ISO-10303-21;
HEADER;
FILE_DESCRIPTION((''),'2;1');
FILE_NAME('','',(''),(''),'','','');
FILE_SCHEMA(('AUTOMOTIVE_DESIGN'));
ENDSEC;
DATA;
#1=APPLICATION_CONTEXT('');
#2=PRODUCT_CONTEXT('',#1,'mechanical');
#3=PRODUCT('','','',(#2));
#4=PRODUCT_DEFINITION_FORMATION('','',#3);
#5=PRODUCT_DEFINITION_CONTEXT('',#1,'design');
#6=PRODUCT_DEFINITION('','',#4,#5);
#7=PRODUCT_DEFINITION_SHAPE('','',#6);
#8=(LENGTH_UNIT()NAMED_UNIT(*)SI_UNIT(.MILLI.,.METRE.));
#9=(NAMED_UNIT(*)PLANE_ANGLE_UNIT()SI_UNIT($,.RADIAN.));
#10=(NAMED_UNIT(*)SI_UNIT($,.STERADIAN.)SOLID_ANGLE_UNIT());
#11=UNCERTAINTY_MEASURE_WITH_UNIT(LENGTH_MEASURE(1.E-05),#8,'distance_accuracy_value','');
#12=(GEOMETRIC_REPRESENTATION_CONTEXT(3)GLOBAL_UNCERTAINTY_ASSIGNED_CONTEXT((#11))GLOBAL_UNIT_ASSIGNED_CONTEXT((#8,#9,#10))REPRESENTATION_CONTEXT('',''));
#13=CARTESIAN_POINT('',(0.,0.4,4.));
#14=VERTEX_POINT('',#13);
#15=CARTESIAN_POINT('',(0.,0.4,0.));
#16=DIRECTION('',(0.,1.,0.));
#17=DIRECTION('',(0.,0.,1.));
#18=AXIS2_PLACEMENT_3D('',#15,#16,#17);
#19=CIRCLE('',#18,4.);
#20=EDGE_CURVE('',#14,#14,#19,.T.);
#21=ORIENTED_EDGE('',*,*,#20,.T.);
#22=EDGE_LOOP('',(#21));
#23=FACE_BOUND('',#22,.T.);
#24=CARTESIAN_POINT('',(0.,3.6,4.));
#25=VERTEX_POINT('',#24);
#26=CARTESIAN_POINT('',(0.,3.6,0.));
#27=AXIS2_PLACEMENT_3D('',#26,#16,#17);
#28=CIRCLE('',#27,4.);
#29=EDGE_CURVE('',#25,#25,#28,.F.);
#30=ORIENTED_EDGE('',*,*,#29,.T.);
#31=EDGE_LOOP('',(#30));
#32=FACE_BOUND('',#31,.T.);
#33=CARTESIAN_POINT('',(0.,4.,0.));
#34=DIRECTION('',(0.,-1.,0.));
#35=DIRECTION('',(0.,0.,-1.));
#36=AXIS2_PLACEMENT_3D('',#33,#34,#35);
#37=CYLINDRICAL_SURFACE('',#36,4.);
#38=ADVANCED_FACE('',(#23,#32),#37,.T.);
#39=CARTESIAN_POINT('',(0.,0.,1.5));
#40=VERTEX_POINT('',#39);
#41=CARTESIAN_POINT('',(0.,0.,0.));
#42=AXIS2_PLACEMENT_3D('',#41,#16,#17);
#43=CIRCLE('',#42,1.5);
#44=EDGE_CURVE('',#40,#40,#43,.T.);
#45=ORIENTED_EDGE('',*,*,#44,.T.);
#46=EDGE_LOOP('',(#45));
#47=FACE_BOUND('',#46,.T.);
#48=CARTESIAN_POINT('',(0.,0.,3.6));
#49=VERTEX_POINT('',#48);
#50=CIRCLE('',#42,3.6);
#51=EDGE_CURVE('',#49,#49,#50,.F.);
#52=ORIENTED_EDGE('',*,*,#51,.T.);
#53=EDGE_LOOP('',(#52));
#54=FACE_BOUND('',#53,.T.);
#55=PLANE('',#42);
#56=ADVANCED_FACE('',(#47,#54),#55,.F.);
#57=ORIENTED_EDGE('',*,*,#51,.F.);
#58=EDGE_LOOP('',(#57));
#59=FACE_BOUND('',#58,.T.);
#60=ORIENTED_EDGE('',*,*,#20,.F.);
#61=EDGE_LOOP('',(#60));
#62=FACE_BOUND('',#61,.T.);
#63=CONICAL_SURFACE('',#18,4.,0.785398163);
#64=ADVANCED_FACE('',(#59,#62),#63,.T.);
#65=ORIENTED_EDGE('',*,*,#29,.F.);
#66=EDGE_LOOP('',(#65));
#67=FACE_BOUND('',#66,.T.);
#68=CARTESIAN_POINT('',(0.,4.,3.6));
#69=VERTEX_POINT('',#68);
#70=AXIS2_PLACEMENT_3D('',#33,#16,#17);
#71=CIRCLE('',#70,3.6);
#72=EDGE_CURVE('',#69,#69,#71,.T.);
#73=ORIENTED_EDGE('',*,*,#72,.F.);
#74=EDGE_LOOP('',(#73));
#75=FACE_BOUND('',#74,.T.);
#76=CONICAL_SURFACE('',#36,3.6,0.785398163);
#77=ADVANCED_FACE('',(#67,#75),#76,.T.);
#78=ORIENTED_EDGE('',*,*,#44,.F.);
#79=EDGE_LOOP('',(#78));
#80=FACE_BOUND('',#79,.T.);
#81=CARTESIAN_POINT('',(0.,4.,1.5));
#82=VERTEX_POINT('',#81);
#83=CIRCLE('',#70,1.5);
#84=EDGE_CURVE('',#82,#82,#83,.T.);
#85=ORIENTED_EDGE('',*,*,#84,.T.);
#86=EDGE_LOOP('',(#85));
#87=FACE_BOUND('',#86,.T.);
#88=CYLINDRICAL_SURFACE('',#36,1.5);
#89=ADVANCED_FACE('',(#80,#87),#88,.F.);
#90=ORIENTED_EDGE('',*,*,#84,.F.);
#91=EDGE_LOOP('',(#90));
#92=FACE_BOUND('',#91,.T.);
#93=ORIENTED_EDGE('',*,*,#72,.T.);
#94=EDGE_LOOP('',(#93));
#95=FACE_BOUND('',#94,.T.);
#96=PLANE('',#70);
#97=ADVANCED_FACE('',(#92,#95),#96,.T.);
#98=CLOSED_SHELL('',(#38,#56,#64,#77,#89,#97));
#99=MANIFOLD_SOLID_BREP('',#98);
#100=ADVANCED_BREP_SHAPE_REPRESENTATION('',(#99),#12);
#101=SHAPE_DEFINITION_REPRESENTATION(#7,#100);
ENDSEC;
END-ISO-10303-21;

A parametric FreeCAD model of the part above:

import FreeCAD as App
import Part
import Sketcher
from FreeCAD import Vector


def edges_at(feature, points):
    """Names of the edges that pass closest to the given points."""
    edges = feature.Shape.Edges
    near = lambda p: min(range(len(edges)), key=lambda i: edges[i].distToShape(Part.Vertex(*p))[0])
    return sorted({f"Edge{near(p) + 1}" for p in points})

doc = App.newDocument("Part")
body = doc.addObject("PartDesign::Body", "Body")

sketch1 = body.newObject("Sketcher::SketchObject", "Sketch")
sketch1.AttachmentSupport = (doc.getObject("XZ_Plane"), [""])
sketch1.MapMode = "FlatFace"
sketch1.addGeometry([
    Part.Circle(Vector(0, 0, 0), Vector(0, 0, 1), 4),
    Part.Circle(Vector(0, 0, 0), Vector(0, 0, 1), 1.5),
], False)
sketch1.addConstraint([
    Sketcher.Constraint("Coincident", 0, 3, -1, 1),
    Sketcher.Constraint("Coincident", 1, 3, -1, 1),
    Sketcher.Constraint("Diameter", 0, 8.0),
    Sketcher.Constraint("Diameter", 1, 3.0),
])
pad1 = body.newObject("PartDesign::Pad", "Pad")
pad1.Profile = sketch1
pad1.Length = 4
pad1.Reversed = True
doc.recompute()

chamfer = body.newObject("PartDesign::Chamfer", "Chamfer")
chamfer.Base = (pad1, edges_at(pad1, [(0, 0, -4), (0, 4, -4)]))
chamfer.Size = 0.4

doc.recompute()
